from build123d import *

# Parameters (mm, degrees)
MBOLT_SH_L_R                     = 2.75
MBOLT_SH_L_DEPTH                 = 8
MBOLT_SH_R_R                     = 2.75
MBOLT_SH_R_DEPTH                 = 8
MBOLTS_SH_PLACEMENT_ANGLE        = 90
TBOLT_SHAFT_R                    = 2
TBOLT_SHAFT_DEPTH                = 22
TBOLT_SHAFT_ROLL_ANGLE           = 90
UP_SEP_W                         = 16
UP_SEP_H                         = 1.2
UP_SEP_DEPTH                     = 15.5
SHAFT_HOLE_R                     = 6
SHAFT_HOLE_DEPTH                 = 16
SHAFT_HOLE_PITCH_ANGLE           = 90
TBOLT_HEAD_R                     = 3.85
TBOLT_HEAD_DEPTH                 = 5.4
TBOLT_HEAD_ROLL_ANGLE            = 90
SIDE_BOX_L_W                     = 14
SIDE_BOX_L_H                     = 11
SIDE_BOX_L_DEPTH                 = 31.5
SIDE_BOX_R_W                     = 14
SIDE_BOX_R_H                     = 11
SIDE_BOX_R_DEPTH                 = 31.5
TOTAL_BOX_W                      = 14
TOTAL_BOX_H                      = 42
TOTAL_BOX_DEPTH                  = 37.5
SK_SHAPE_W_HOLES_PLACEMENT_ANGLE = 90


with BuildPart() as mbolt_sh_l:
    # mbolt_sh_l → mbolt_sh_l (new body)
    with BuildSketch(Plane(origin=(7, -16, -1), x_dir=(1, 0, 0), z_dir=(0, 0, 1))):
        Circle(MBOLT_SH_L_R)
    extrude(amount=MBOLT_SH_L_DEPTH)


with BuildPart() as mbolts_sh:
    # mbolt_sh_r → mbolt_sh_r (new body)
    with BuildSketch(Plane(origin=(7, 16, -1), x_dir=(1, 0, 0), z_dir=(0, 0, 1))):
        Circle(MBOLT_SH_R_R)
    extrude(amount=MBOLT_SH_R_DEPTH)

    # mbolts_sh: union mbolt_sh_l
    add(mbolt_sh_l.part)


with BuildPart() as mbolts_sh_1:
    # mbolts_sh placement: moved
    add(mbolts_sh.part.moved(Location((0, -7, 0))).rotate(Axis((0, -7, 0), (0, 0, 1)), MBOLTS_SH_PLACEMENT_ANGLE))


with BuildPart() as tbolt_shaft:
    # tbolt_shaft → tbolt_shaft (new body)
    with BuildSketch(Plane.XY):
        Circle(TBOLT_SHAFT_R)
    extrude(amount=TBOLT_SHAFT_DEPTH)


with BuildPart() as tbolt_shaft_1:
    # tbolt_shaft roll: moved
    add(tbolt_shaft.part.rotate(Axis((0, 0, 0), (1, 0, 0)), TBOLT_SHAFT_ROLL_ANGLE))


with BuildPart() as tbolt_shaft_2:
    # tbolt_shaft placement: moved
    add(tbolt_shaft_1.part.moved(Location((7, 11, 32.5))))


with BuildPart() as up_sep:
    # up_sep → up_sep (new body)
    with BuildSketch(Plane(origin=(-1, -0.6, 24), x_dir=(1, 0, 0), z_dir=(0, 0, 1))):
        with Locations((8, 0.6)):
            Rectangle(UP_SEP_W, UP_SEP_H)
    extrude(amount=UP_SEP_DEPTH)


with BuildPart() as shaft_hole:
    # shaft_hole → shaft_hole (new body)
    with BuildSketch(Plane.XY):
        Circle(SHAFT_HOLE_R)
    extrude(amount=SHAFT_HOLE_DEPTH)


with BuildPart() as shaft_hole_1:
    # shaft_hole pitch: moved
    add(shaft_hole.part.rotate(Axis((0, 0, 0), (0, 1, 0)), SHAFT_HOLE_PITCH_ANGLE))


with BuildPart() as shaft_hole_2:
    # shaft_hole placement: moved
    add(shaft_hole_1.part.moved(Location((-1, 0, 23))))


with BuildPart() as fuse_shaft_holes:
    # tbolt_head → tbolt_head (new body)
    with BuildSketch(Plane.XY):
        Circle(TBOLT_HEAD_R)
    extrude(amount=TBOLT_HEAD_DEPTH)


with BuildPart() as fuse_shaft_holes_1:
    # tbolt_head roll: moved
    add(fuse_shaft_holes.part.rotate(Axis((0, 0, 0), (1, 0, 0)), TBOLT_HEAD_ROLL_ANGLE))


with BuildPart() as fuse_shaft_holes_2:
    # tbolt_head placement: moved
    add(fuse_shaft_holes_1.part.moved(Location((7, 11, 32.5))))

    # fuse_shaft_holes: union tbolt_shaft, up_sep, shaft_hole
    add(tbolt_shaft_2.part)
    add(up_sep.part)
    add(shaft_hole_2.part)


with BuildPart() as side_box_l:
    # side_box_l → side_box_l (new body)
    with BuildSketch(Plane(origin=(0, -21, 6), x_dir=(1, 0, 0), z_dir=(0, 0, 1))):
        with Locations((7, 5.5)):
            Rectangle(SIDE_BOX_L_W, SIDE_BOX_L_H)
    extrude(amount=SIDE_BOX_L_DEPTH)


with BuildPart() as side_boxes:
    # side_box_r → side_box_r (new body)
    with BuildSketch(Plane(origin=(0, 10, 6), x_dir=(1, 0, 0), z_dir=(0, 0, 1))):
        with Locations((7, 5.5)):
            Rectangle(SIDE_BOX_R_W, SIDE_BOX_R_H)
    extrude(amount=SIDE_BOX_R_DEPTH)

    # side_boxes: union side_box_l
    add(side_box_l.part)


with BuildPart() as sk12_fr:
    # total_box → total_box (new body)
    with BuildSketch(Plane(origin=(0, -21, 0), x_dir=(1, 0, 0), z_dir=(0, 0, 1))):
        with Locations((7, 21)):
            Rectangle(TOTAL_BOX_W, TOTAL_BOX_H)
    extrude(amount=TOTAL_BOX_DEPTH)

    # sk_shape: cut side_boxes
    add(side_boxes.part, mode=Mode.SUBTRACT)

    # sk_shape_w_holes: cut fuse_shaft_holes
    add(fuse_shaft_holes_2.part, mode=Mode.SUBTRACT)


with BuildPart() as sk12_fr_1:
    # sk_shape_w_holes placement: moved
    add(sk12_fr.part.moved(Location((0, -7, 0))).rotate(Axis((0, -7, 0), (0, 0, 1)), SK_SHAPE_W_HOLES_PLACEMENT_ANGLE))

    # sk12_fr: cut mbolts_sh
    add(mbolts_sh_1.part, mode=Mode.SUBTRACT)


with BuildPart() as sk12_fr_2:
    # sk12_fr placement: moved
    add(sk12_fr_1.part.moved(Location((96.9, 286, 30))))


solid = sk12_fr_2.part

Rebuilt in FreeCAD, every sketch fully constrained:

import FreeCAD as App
import Part
import Sketcher


def add_polygon(sketch, points):
    """Adds a closed chain of lines whose ends are joined by coincident constraints."""
    first, n = sketch.GeometryCount, len(points)
    for a, b in zip(points, points[1:] + points[:1]):
        sketch.addGeometry(Part.LineSegment(App.Vector(*a, 0), App.Vector(*b, 0)), False)
    for i in range(n):
        sketch.addConstraint(Sketcher.Constraint("Coincident", first + i, 2, first + (i + 1) % n, 1))

doc = App.newDocument("Part")
params = doc.addObject("Spreadsheet::Sheet", "Params")
for row, (alias, value) in enumerate([
    ("sketch1_diameter", "5.5 mm"),
    ("pad1_length", "8 mm"),
    ("sketch2_diameter", "5.5 mm"),
    ("pad2_length", "8 mm"),
    ("sketch3_diameter", "4 mm"),
    ("pad3_length", "22 mm"),
    ("sketch4_width", "16 mm"),
    ("sketch4_height", "1.2 mm"),
    ("pad4_length", "15.5 mm"),
    ("sketch5_diameter", "12 mm"),
    ("pad5_length", "16 mm"),
    ("sketch6_diameter", "7.7 mm"),
    ("pad6_length", "5.4 mm"),
    ("sketch7_width", "14 mm"),
    ("sketch7_height", "11 mm"),
    ("pad7_length", "31.5 mm"),
    ("sketch8_width", "14 mm"),
    ("sketch8_height", "11 mm"),
    ("pad8_length", "31.5 mm"),
    ("sketch9_width", "14 mm"),
    ("sketch9_height", "42 mm"),
    ("pad9_length", "37.5 mm"),
], start=1):
    params.set(f"A{row}", alias)
    params.set(f"B{row}", "=" + value)
    params.setAlias(f"B{row}", alias)

body = doc.addObject("PartDesign::Body", "Body")

sketch1 = body.newObject("Sketcher::SketchObject", "Sketch")
sketch1.AttachmentSupport = (doc.getObject("XY_Plane"), [""])
sketch1.MapMode = "FlatFace"
sketch1.AttachmentOffset = App.Placement(App.Vector(0, 0, -1), App.Rotation())
sketch1.addGeometry(Part.Circle(App.Vector(7, -16, 0), App.Vector(0, 0, 1), 2.8), False)
sketch1.addConstraint([
    Sketcher.Constraint("Diameter", 0, 5.5),
    Sketcher.Constraint("DistanceX", -1, 1, 0, 3, 7.0),
    Sketcher.Constraint("DistanceY", 0, 3, -1, 1, 16.0),
])
sketch1.setExpression("Constraints[0]", "Params.sketch1_diameter")
pad1 = body.newObject("PartDesign::Pad", "Pad")
pad1.Profile = sketch1
pad1.setExpression("Length", "Params.pad1_length")
body2 = doc.addObject("PartDesign::Body", "Body001")
body2.AllowCompound = True

sketch2 = body2.newObject("Sketcher::SketchObject", "Sketch001")
sketch2.AttachmentSupport = (doc.getObject("XY_Plane001"), [""])
sketch2.MapMode = "FlatFace"
sketch2.AttachmentOffset = App.Placement(App.Vector(0, 0, -1), App.Rotation())
sketch2.addGeometry(Part.Circle(App.Vector(7, 16, 0), App.Vector(0, 0, 1), 2.8), False)
sketch2.addConstraint([
    Sketcher.Constraint("Diameter", 0, 5.5),
    Sketcher.Constraint("DistanceX", -1, 1, 0, 3, 7.0),
    Sketcher.Constraint("DistanceY", -1, 1, 0, 3, 16.0),
])
sketch2.setExpression("Constraints[0]", "Params.sketch2_diameter")
pad2 = body2.newObject("PartDesign::Pad", "Pad001")
pad2.Profile = sketch2
pad2.setExpression("Length", "Params.pad2_length")
doc.recompute()

boolean = body2.newObject("PartDesign::Boolean", "Boolean")
boolean.Type = "Fuse"
boolean.addObjects([body])
body3 = doc.addObject("PartDesign::Body", "Body002")
body3.AllowCompound = True
doc.recompute()

body2.Placement = App.Placement(App.Vector(0, -7, 0), App.Rotation(App.Vector(0, 0, 1), 90))
boolean2 = body3.newObject("PartDesign::Boolean", "Boolean001")
boolean2.Type = "Fuse"
boolean2.addObjects([body2])
body4 = doc.addObject("PartDesign::Body", "Body003")

sketch3 = body4.newObject("Sketcher::SketchObject", "Sketch002")
sketch3.AttachmentSupport = (doc.getObject("XY_Plane003"), [""])
sketch3.MapMode = "FlatFace"
sketch3.addGeometry(Part.Circle(App.Vector(0, 0, 0), App.Vector(0, 0, 1), 2), False)
sketch3.addConstraint([
    Sketcher.Constraint("Coincident", 0, 3, -1, 1),
    Sketcher.Constraint("Diameter", 0, 4.0),
])
sketch3.setExpression("Constraints[1]", "Params.sketch3_diameter")
pad3 = body4.newObject("PartDesign::Pad", "Pad002")
pad3.Profile = sketch3
pad3.setExpression("Length", "Params.pad3_length")
body5 = doc.addObject("PartDesign::Body", "Body004")
doc.recompute()

body4.Placement = App.Placement(App.Vector(0, 0, 0), App.Rotation(App.Vector(1, 0, 0), 90))
boolean3 = body5.newObject("PartDesign::Boolean", "Boolean002")
boolean3.Type = "Fuse"
boolean3.addObjects([body4])
body6 = doc.addObject("PartDesign::Body", "Body005")
doc.recompute()

body5.Placement = App.Placement(App.Vector(7, 11, 32.5), App.Rotation(App.Vector(0, 0, 1), 0))
boolean4 = body6.newObject("PartDesign::Boolean", "Boolean003")
boolean4.Type = "Fuse"
boolean4.addObjects([body5])
body7 = doc.addObject("PartDesign::Body", "Body006")

sketch4 = body7.newObject("Sketcher::SketchObject", "Sketch003")
sketch4.AttachmentSupport = (doc.getObject("XY_Plane006"), [""])
sketch4.MapMode = "FlatFace"
sketch4.AttachmentOffset = App.Placement(App.Vector(0, 0, 24), App.Rotation())
add_polygon(sketch4, [(-1, 0.6), (-1, -0.6), (15, -0.6), (15, 0.6)])
sketch4.addConstraint([
    Sketcher.Constraint("Vertical", 0),
    Sketcher.Constraint("Horizontal", 1),
    Sketcher.Constraint("Vertical", 2),
    Sketcher.Constraint("Horizontal", 3),
    Sketcher.Constraint("DistanceX", 1, 1, 1, 2, 16.0),
    Sketcher.Constraint("DistanceY", 0, 2, 0, 1, 1.2),
    Sketcher.Constraint("DistanceX", 0, 2, -1, 1, 1.0),
    Sketcher.Constraint("DistanceY", 0, 2, -1, 1, 0.6),
])
sketch4.setExpression("Constraints[8]", "Params.sketch4_width")
sketch4.setExpression("Constraints[9]", "Params.sketch4_height")
pad4 = body7.newObject("PartDesign::Pad", "Pad003")
pad4.Profile = sketch4
pad4.setExpression("Length", "Params.pad4_length")
body8 = doc.addObject("PartDesign::Body", "Body007")

sketch5 = body8.newObject("Sketcher::SketchObject", "Sketch004")
sketch5.AttachmentSupport = (doc.getObject("XY_Plane007"), [""])
sketch5.MapMode = "FlatFace"
sketch5.addGeometry(Part.Circle(App.Vector(0, 0, 0), App.Vector(0, 0, 1), 6), False)
sketch5.addConstraint([
    Sketcher.Constraint("Coincident", 0, 3, -1, 1),
    Sketcher.Constraint("Diameter", 0, 12.0),
])
sketch5.setExpression("Constraints[1]", "Params.sketch5_diameter")
pad5 = body8.newObject("PartDesign::Pad", "Pad004")
pad5.Profile = sketch5
pad5.setExpression("Length", "Params.pad5_length")
body9 = doc.addObject("PartDesign::Body", "Body008")
doc.recompute()

body8.Placement = App.Placement(App.Vector(0, 0, 0), App.Rotation(App.Vector(0, 1, 0), 90))
boolean5 = body9.newObject("PartDesign::Boolean", "Boolean004")
boolean5.Type = "Fuse"
boolean5.addObjects([body8])
body10 = doc.addObject("PartDesign::Body", "Body009")
doc.recompute()

body9.Placement = App.Placement(App.Vector(-1, 0, 23), App.Rotation(App.Vector(0, 0, 1), 0))
boolean6 = body10.newObject("PartDesign::Boolean", "Boolean005")
boolean6.Type = "Fuse"
boolean6.addObjects([body9])
body11 = doc.addObject("PartDesign::Body", "Body010")

sketch6 = body11.newObject("Sketcher::SketchObject", "Sketch005")
sketch6.AttachmentSupport = (doc.getObject("XY_Plane010"), [""])
sketch6.MapMode = "FlatFace"
sketch6.addGeometry(Part.Circle(App.Vector(0, 0, 0), App.Vector(0, 0, 1), 3.9), False)
sketch6.addConstraint([
    Sketcher.Constraint("Coincident", 0, 3, -1, 1),
    Sketcher.Constraint("Diameter", 0, 7.7),
])
sketch6.setExpression("Constraints[1]", "Params.sketch6_diameter")
pad6 = body11.newObject("PartDesign::Pad", "Pad005")
pad6.Profile = sketch6
pad6.setExpression("Length", "Params.pad6_length")
body12 = doc.addObject("PartDesign::Body", "Body011")
doc.recompute()

body11.Placement = App.Placement(App.Vector(0, 0, 0), App.Rotation(App.Vector(1, 0, 0), 90))
boolean7 = body12.newObject("PartDesign::Boolean", "Boolean006")
boolean7.Type = "Fuse"
boolean7.addObjects([body11])
body13 = doc.addObject("PartDesign::Body", "Body012")
doc.recompute()

body12.Placement = App.Placement(App.Vector(7, 11, 32.5), App.Rotation(App.Vector(0, 0, 1), 0))
boolean8 = body13.newObject("PartDesign::Boolean", "Boolean007")
boolean8.Type = "Fuse"
boolean8.addObjects([body12])
doc.recompute()

boolean9 = body13.newObject("PartDesign::Boolean", "Boolean008")
boolean9.Type = "Fuse"
boolean9.addObjects([body6])
doc.recompute()

boolean10 = body13.newObject("PartDesign::Boolean", "Boolean009")
boolean10.Type = "Fuse"
boolean10.addObjects([body7])
doc.recompute()

boolean11 = body13.newObject("PartDesign::Boolean", "Boolean010")
boolean11.Type = "Fuse"
boolean11.addObjects([body10])
body14 = doc.addObject("PartDesign::Body", "Body013")

sketch7 = body14.newObject("Sketcher::SketchObject", "Sketch006")
sketch7.AttachmentSupport = (doc.getObject("XY_Plane013"), [""])
sketch7.MapMode = "FlatFace"
sketch7.AttachmentOffset = App.Placement(App.Vector(0, 0, 6), App.Rotation())
add_polygon(sketch7, [(0, -10), (0, -21), (14, -21), (14, -10)])
sketch7.addConstraint([
    Sketcher.Constraint("Vertical", 0),
    Sketcher.Constraint("Horizontal", 1),
    Sketcher.Constraint("Vertical", 2),
    Sketcher.Constraint("Horizontal", 3),
    Sketcher.Constraint("PointOnObject", 0, 2, -2),
    Sketcher.Constraint("DistanceX", 1, 1, 1, 2, 14.0),
    Sketcher.Constraint("DistanceY", 0, 2, 0, 1, 11.0),
    Sketcher.Constraint("DistanceY", 0, 2, -1, 1, 21.0),
])
sketch7.setExpression("Constraints[9]", "Params.sketch7_width")
sketch7.setExpression("Constraints[10]", "Params.sketch7_height")
pad7 = body14.newObject("PartDesign::Pad", "Pad006")
pad7.Profile = sketch7
pad7.setExpression("Length", "Params.pad7_length")
body15 = doc.addObject("PartDesign::Body", "Body014")
body15.AllowCompound = True

sketch8 = body15.newObject("Sketcher::SketchObject", "Sketch007")
sketch8.AttachmentSupport = (doc.getObject("XY_Plane014"), [""])
sketch8.MapMode = "FlatFace"
sketch8.AttachmentOffset = App.Placement(App.Vector(0, 0, 6), App.Rotation())
add_polygon(sketch8, [(0, 21), (0, 10), (14, 10), (14, 21)])
sketch8.addConstraint([
    Sketcher.Constraint("Vertical", 0),
    Sketcher.Constraint("Horizontal", 1),
    Sketcher.Constraint("Vertical", 2),
    Sketcher.Constraint("Horizontal", 3),
    Sketcher.Constraint("PointOnObject", 0, 2, -2),
    Sketcher.Constraint("DistanceX", 1, 1, 1, 2, 14.0),
    Sketcher.Constraint("DistanceY", 0, 2, 0, 1, 11.0),
    Sketcher.Constraint("DistanceY", -1, 1, 0, 2, 10.0),
])
sketch8.setExpression("Constraints[9]", "Params.sketch8_width")
sketch8.setExpression("Constraints[10]", "Params.sketch8_height")
pad8 = body15.newObject("PartDesign::Pad", "Pad007")
pad8.Profile = sketch8
pad8.setExpression("Length", "Params.pad8_length")
doc.recompute()

boolean12 = body15.newObject("PartDesign::Boolean", "Boolean011")
boolean12.Type = "Fuse"
boolean12.addObjects([body14])
body16 = doc.addObject("PartDesign::Body", "Body015")

sketch9 = body16.newObject("Sketcher::SketchObject", "Sketch008")
sketch9.AttachmentSupport = (doc.getObject("XY_Plane015"), [""])
sketch9.MapMode = "FlatFace"
add_polygon(sketch9, [(0, 21), (0, -21), (14, -21), (14, 21)])
sketch9.addConstraint([
    Sketcher.Constraint("Vertical", 0),
    Sketcher.Constraint("Horizontal", 1),
    Sketcher.Constraint("Vertical", 2),
    Sketcher.Constraint("Horizontal", 3),
    Sketcher.Constraint("Symmetric", 0, 2, 3, 2, -1, 1),
    Sketcher.Constraint("DistanceX", 1, 1, 1, 2, 14.0),
    Sketcher.Constraint("DistanceY", 0, 2, 0, 1, 42.0),
])
sketch9.setExpression("Constraints[9]", "Params.sketch9_width")
sketch9.setExpression("Constraints[10]", "Params.sketch9_height")
pad9 = body16.newObject("PartDesign::Pad", "Pad008")
pad9.Profile = sketch9
pad9.setExpression("Length", "Params.pad9_length")
doc.recompute()

boolean13 = body16.newObject("PartDesign::Boolean", "Boolean012")
boolean13.Type = "Cut"
boolean13.addObjects([body15])
doc.recompute()

boolean14 = body16.newObject("PartDesign::Boolean", "Boolean013")
boolean14.Type = "Cut"
boolean14.addObjects([body13])
body17 = doc.addObject("PartDesign::Body", "Body016")
doc.recompute()

body16.Placement = App.Placement(App.Vector(0, -7, 0), App.Rotation(App.Vector(0, 0, 1), 90))
boolean15 = body17.newObject("PartDesign::Boolean", "Boolean014")
boolean15.Type = "Fuse"
boolean15.addObjects([body16])
doc.recompute()

boolean16 = body17.newObject("PartDesign::Boolean", "Boolean015")
boolean16.Type = "Cut"
boolean16.addObjects([body3])
body18 = doc.addObject("PartDesign::Body", "Body017")
doc.recompute()

body17.Placement = App.Placement(App.Vector(96.9, 286, 30), App.Rotation(App.Vector(0, 0, 1), 0))
boolean17 = body18.newObject("PartDesign::Boolean", "Boolean016")
boolean17.Type = "Fuse"
boolean17.addObjects([body17])

doc.recompute()
